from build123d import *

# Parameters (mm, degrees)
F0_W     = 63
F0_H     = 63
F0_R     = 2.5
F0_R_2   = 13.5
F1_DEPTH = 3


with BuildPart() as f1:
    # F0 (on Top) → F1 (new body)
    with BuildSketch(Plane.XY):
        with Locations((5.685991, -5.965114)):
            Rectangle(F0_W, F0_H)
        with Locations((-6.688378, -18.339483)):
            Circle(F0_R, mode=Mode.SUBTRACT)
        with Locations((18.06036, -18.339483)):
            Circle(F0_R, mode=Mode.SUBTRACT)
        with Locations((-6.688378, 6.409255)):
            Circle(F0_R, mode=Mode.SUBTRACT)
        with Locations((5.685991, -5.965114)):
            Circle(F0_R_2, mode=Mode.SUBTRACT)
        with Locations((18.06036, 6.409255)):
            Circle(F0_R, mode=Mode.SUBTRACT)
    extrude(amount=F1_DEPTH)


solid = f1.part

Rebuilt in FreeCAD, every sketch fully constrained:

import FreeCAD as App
import Part
import Sketcher


def add_polygon(sketch, points):
    """Adds a closed chain of lines whose ends are joined by coincident constraints."""
    first, n = sketch.GeometryCount, len(points)
    for a, b in zip(points, points[1:] + points[:1]):
        sketch.addGeometry(Part.LineSegment(App.Vector(*a, 0), App.Vector(*b, 0)), False)
    for i in range(n):
        sketch.addConstraint(Sketcher.Constraint("Coincident", first + i, 2, first + (i + 1) % n, 1))

doc = App.newDocument("Part")
params = doc.addObject("Spreadsheet::Sheet", "Params")
for row, (alias, value) in enumerate([
    ("sketch1_diameter", "5 mm"),
    ("sketch1_diameter2", "27 mm"),
    ("sketch1_width", "63 mm"),
    ("pad1_length", "3 mm"),
], start=1):
    params.set(f"A{row}", alias)
    params.set(f"B{row}", "=" + value)
    params.setAlias(f"B{row}", alias)

body = doc.addObject("PartDesign::Body", "Body")

# Sketch on XY plane
sketch1 = body.newObject("Sketcher::SketchObject", "Sketch")
sketch1.AttachmentSupport = (doc.getObject("XY_Plane"), [""])
sketch1.MapMode = "FlatFace"
add_polygon(sketch1, [(-25.814009, 25.534886), (-25.814009, -37.465114), (37.185991, -37.465114), (37.185991, 25.534886)])  # lines 0-3
sketch1.addGeometry(Part.Circle(App.Vector(-6.688378, -18.339483, 0), App.Vector(0, 0, 1), 2.5), False)  # 4
sketch1.addGeometry(Part.Circle(App.Vector(18.06036, -18.339483, 0), App.Vector(0, 0, 1), 2.5), False)  # 5
sketch1.addGeometry(Part.Circle(App.Vector(5.685991, -5.965114, 0), App.Vector(0, 0, 1), 13.5), False)  # 6
sketch1.addGeometry(Part.Circle(App.Vector(-6.688378, 6.409255, 0), App.Vector(0, 0, 1), 2.5), False)  # 7
sketch1.addGeometry(Part.Circle(App.Vector(18.06036, 6.409255, 0), App.Vector(0, 0, 1), 2.5), False)  # 8
sketch1.addConstraint(Sketcher.Constraint("Vertical", 0))
sketch1.addConstraint(Sketcher.Constraint("Horizontal", 1))
sketch1.addConstraint(Sketcher.Constraint("Vertical", 2))
sketch1.addConstraint(Sketcher.Constraint("Horizontal", 3))
sketch1.addConstraint(Sketcher.Constraint("Equal", 4, 5))
sketch1.addConstraint(Sketcher.Constraint("Equal", 5, 7))
sketch1.addConstraint(Sketcher.Constraint("Equal", 7, 8))
sketch1.addConstraint(Sketcher.Constraint("Horizontal", 4, 3, 5, 3))
sketch1.addConstraint(Sketcher.Constraint("Horizontal", 7, 3, 8, 3))
sketch1.addConstraint(Sketcher.Constraint("Vertical", 4, 3, 7, 3))
sketch1.addConstraint(Sketcher.Constraint("Vertical", 5, 3, 8, 3))
sketch1.addConstraint(Sketcher.Constraint("Equal", 3, 0))
sketch1.addConstraint(Sketcher.Constraint("Diameter", 4, 5.0))
sketch1.addConstraint(Sketcher.Constraint("Diameter", 6, 27.0))
sketch1.addConstraint(Sketcher.Constraint("DistanceX", 1, 1, 1, 2, 63.0))
sketch1.addConstraint(Sketcher.Constraint("DistanceX", 0, 2, 6, 3, 31.5))
sketch1.addConstraint(Sketcher.Constraint("DistanceY", 0, 2, 6, 3, 31.5))
sketch1.addConstraint(Sketcher.Constraint("DistanceX", -1, 1, 5, 3, 18.06036))
sketch1.addConstraint(Sketcher.Constraint("DistanceX", -1, 1, 6, 3, 5.685991))
sketch1.addConstraint(Sketcher.Constraint("DistanceX", 4, 3, 6, 3, 12.374369))
sketch1.addConstraint(Sketcher.Constraint("DistanceY", 4, 3, 6, 3, 12.374369))
sketch1.addConstraint(Sketcher.Constraint("DistanceY", 6, 3, 7, 3, 12.374369))
sketch1.addConstraint(Sketcher.Constraint("DistanceY", 4, 3, -1, 1, 18.339483))
sketch1.setExpression("Constraints[16]", "Params.sketch1_diameter")
sketch1.setExpression("Constraints[17]", "Params.sketch1_diameter2")
sketch1.setExpression("Constraints[18]", "Params.sketch1_width")
pad1 = body.newObject("PartDesign::Pad", "Pad")
pad1.Profile = sketch1
pad1.setExpression("Length", "Params.pad1_length")

doc.recompute()
